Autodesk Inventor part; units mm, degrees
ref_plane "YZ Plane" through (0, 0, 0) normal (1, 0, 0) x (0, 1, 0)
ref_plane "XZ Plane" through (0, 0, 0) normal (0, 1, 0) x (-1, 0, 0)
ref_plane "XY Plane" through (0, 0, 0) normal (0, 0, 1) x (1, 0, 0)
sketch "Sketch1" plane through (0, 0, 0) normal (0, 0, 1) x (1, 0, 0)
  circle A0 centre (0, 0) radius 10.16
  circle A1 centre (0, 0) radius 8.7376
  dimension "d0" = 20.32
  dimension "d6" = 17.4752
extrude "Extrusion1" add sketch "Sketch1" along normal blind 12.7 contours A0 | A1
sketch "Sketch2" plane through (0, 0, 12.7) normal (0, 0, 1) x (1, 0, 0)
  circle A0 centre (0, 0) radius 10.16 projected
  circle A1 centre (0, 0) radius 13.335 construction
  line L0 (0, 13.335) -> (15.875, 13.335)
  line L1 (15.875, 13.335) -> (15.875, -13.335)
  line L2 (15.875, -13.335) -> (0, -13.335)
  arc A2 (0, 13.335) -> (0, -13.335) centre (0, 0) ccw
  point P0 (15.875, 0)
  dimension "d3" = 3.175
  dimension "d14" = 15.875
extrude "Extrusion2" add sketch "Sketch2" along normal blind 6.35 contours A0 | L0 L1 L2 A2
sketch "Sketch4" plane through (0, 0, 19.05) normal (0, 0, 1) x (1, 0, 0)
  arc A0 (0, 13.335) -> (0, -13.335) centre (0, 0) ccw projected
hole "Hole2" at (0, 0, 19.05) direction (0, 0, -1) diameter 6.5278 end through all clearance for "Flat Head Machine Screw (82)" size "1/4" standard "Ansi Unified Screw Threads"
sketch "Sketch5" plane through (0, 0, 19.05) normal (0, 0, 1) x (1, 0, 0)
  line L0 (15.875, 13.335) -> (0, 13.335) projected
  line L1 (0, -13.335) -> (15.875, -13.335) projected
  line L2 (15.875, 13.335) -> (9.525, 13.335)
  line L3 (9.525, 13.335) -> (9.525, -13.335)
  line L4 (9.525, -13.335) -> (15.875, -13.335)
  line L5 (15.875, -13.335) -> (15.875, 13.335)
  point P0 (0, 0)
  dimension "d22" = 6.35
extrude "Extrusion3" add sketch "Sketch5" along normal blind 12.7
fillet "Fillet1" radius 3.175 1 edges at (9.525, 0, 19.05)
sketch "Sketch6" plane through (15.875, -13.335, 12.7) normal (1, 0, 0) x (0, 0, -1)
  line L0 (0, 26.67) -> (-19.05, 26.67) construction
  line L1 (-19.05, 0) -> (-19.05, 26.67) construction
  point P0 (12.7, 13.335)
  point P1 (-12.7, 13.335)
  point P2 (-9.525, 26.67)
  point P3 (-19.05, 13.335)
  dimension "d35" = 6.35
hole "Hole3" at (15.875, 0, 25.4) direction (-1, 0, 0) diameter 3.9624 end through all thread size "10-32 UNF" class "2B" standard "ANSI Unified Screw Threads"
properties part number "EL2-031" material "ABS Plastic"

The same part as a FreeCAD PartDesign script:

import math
import FreeCAD as App
import Part
import Sketcher
Q = App.Units.Quantity


def edges_at(feature, points):
    """Names of the edges that pass closest to the given points."""
    edges = feature.Shape.Edges
    near = lambda p: min(range(len(edges)), key=lambda i: edges[i].distToShape(Part.Vertex(*p))[0])
    return sorted({f"Edge{near(p) + 1}" for p in points})

doc = App.newDocument("Part")
body = doc.addObject("PartDesign::Body", "Body")

# Sketch on XY plane
sketch1 = body.newObject("Sketcher::SketchObject", "Sketch")
sketch1.AttachmentSupport = (doc.getObject("XY_Plane"), [""])
sketch1.MapMode = "FlatFace"
sketch1.addGeometry(Part.Circle(App.Vector(0, 0, 0), App.Vector(0, 0, 1), 10.16), False)
sketch1.addConstraint([
    Sketcher.Constraint("Coincident", 0, 3, -1, 1),
    Sketcher.Constraint("Diameter", 0, Q("0.8 in")),
])
pad1 = body.newObject("PartDesign::Pad", "Pad")
pad1.Profile = sketch1
pad1.Length = Q("0.5 in")

# Sketch on XY plane
sketch2 = body.newObject("Sketcher::SketchObject", "Sketch001")
sketch2.AttachmentSupport = (doc.getObject("XY_Plane"), [""])
sketch2.MapMode = "FlatFace"
sketch2.AttachmentOffset = App.Placement(App.Vector(0, 0, 0.5 * 25.4), App.Rotation())
sketch2.addGeometry([
    Part.LineSegment(App.Vector(15.875, 13.335, 0), App.Vector(0, 13.335, 0)),
    Part.ArcOfCircle(Part.Circle(App.Vector(0, 0, 0), App.Vector(0, 0, 1), 13.335), math.radians(90), math.radians(270)),
    Part.LineSegment(App.Vector(0, -13.335, 0), App.Vector(15.875, -13.335, 0)),
    Part.LineSegment(App.Vector(15.875, -13.335, 0), App.Vector(15.875, 13.335, 0)),
], False)
sketch2.addConstraint([
    Sketcher.Constraint("Tangent", 0, 2, 1, 1),
    Sketcher.Constraint("Tangent", 1, 2, 2, 1),
    Sketcher.Constraint("Coincident", 2, 2, 3, 1),
    Sketcher.Constraint("Coincident", 3, 2, 0, 1),
    Sketcher.Constraint("Horizontal", 0),
    Sketcher.Constraint("Horizontal", 2),
    Sketcher.Constraint("Vertical", 3),
    Sketcher.Constraint("Coincident", 1, 3, -1, 1),
    Sketcher.Constraint("DistanceX", 0, 2, 0, 1, Q("0.625 in")),
    Sketcher.Constraint("Radius", 1, Q("0.525 in")),
])
pad2 = body.newObject("PartDesign::Pad", "Pad001")
pad2.Profile = sketch2
pad2.Length = Q("0.25 in")

# Sketch on XY plane
sketch3 = body.newObject("Sketcher::SketchObject", "Sketch002")
sketch3.AttachmentSupport = (doc.getObject("XY_Plane"), [""])
sketch3.MapMode = "FlatFace"
sketch3.AttachmentOffset = App.Placement(App.Vector(0, 0, 0.75 * 25.4), App.Rotation())
sketch3.addGeometry(Part.Circle(App.Vector(0, 0, 0), App.Vector(0, 0, 1), 3.2639), False)
sketch3.addConstraint([
    Sketcher.Constraint("Coincident", 0, 3, -1, 1),
    Sketcher.Constraint("Diameter", 0, Q("0.257 in")),
])
doc.recompute()
hole = body.newObject("PartDesign::Hole", "Hole")
hole.Profile = sketch3
hole.ThreadType = "None"
hole.Diameter = Q("0.257 in")
hole.DepthType = "ThroughAll"

# Sketch on XY plane
sketch4 = body.newObject("Sketcher::SketchObject", "Sketch003")
sketch4.AttachmentSupport = (doc.getObject("XY_Plane"), [""])
sketch4.MapMode = "FlatFace"
sketch4.AttachmentOffset = App.Placement(App.Vector(0, 0, 0.75 * 25.4), App.Rotation())
sketch4.addGeometry([
    Part.LineSegment(App.Vector(15.875, -13.335, 0), App.Vector(15.875, 13.335, 0)),
    Part.LineSegment(App.Vector(15.875, 13.335, 0), App.Vector(9.525, 13.335, 0)),
    Part.LineSegment(App.Vector(9.525, 13.335, 0), App.Vector(9.525, -13.335, 0)),
    Part.LineSegment(App.Vector(9.525, -13.335, 0), App.Vector(15.875, -13.335, 0)),
], False)
sketch4.addConstraint([
    Sketcher.Constraint("Coincident", 0, 2, 1, 1),
    Sketcher.Constraint("Coincident", 1, 2, 2, 1),
    Sketcher.Constraint("Coincident", 2, 2, 3, 1),
    Sketcher.Constraint("Coincident", 3, 2, 0, 1),
    Sketcher.Constraint("Vertical", 0),
    Sketcher.Constraint("Horizontal", 1),
    Sketcher.Constraint("Vertical", 2),
    Sketcher.Constraint("Horizontal", 3),
    Sketcher.Constraint("DistanceX", 1, 2, 1, 1, Q("0.25 in")),
    Sketcher.Constraint("DistanceY", 0, 1, 0, 2, Q("1.05 in")),
    Sketcher.Constraint("DistanceX", -1, 1, 0, 2, Q("0.625 in")),
    Sketcher.Constraint("DistanceY", -1, 1, 0, 2, Q("0.525 in")),
])
pad3 = body.newObject("PartDesign::Pad", "Pad002")
pad3.Profile = sketch4
pad3.Length = Q("0.5 in")
doc.recompute()

fillet = body.newObject("PartDesign::Fillet", "Fillet")
fillet.Base = (pad3, edges_at(pad3, [(9.525, 0, 19.05)]))
fillet.Radius = Q("0.125 in")

# Sketch on YZ plane
sketch5 = body.newObject("Sketcher::SketchObject", "Sketch004")
sketch5.AttachmentSupport = (doc.getObject("YZ_Plane"), [""])
sketch5.MapMode = "FlatFace"
sketch5.AttachmentOffset = App.Placement(App.Vector(0, 0, 0.625 * 25.4), App.Rotation())
sketch5.addGeometry(Part.Circle(App.Vector(0, 25.4, 0), App.Vector(0, 0, 1), 1.9812), False)
sketch5.addConstraint([
    Sketcher.Constraint("PointOnObject", 0, 3, -2),
    Sketcher.Constraint("Diameter", 0, Q("0.156 in")),
    Sketcher.Constraint("DistanceY", -1, 1, 0, 3, Q("1 in")),
])
doc.recompute()
hole2 = body.newObject("PartDesign::Hole", "Hole001")
hole2.Profile = sketch5
hole2.ThreadType = "None"
hole2.Diameter = Q("0.156 in")
hole2.DepthType = "ThroughAll"

doc.recompute()
